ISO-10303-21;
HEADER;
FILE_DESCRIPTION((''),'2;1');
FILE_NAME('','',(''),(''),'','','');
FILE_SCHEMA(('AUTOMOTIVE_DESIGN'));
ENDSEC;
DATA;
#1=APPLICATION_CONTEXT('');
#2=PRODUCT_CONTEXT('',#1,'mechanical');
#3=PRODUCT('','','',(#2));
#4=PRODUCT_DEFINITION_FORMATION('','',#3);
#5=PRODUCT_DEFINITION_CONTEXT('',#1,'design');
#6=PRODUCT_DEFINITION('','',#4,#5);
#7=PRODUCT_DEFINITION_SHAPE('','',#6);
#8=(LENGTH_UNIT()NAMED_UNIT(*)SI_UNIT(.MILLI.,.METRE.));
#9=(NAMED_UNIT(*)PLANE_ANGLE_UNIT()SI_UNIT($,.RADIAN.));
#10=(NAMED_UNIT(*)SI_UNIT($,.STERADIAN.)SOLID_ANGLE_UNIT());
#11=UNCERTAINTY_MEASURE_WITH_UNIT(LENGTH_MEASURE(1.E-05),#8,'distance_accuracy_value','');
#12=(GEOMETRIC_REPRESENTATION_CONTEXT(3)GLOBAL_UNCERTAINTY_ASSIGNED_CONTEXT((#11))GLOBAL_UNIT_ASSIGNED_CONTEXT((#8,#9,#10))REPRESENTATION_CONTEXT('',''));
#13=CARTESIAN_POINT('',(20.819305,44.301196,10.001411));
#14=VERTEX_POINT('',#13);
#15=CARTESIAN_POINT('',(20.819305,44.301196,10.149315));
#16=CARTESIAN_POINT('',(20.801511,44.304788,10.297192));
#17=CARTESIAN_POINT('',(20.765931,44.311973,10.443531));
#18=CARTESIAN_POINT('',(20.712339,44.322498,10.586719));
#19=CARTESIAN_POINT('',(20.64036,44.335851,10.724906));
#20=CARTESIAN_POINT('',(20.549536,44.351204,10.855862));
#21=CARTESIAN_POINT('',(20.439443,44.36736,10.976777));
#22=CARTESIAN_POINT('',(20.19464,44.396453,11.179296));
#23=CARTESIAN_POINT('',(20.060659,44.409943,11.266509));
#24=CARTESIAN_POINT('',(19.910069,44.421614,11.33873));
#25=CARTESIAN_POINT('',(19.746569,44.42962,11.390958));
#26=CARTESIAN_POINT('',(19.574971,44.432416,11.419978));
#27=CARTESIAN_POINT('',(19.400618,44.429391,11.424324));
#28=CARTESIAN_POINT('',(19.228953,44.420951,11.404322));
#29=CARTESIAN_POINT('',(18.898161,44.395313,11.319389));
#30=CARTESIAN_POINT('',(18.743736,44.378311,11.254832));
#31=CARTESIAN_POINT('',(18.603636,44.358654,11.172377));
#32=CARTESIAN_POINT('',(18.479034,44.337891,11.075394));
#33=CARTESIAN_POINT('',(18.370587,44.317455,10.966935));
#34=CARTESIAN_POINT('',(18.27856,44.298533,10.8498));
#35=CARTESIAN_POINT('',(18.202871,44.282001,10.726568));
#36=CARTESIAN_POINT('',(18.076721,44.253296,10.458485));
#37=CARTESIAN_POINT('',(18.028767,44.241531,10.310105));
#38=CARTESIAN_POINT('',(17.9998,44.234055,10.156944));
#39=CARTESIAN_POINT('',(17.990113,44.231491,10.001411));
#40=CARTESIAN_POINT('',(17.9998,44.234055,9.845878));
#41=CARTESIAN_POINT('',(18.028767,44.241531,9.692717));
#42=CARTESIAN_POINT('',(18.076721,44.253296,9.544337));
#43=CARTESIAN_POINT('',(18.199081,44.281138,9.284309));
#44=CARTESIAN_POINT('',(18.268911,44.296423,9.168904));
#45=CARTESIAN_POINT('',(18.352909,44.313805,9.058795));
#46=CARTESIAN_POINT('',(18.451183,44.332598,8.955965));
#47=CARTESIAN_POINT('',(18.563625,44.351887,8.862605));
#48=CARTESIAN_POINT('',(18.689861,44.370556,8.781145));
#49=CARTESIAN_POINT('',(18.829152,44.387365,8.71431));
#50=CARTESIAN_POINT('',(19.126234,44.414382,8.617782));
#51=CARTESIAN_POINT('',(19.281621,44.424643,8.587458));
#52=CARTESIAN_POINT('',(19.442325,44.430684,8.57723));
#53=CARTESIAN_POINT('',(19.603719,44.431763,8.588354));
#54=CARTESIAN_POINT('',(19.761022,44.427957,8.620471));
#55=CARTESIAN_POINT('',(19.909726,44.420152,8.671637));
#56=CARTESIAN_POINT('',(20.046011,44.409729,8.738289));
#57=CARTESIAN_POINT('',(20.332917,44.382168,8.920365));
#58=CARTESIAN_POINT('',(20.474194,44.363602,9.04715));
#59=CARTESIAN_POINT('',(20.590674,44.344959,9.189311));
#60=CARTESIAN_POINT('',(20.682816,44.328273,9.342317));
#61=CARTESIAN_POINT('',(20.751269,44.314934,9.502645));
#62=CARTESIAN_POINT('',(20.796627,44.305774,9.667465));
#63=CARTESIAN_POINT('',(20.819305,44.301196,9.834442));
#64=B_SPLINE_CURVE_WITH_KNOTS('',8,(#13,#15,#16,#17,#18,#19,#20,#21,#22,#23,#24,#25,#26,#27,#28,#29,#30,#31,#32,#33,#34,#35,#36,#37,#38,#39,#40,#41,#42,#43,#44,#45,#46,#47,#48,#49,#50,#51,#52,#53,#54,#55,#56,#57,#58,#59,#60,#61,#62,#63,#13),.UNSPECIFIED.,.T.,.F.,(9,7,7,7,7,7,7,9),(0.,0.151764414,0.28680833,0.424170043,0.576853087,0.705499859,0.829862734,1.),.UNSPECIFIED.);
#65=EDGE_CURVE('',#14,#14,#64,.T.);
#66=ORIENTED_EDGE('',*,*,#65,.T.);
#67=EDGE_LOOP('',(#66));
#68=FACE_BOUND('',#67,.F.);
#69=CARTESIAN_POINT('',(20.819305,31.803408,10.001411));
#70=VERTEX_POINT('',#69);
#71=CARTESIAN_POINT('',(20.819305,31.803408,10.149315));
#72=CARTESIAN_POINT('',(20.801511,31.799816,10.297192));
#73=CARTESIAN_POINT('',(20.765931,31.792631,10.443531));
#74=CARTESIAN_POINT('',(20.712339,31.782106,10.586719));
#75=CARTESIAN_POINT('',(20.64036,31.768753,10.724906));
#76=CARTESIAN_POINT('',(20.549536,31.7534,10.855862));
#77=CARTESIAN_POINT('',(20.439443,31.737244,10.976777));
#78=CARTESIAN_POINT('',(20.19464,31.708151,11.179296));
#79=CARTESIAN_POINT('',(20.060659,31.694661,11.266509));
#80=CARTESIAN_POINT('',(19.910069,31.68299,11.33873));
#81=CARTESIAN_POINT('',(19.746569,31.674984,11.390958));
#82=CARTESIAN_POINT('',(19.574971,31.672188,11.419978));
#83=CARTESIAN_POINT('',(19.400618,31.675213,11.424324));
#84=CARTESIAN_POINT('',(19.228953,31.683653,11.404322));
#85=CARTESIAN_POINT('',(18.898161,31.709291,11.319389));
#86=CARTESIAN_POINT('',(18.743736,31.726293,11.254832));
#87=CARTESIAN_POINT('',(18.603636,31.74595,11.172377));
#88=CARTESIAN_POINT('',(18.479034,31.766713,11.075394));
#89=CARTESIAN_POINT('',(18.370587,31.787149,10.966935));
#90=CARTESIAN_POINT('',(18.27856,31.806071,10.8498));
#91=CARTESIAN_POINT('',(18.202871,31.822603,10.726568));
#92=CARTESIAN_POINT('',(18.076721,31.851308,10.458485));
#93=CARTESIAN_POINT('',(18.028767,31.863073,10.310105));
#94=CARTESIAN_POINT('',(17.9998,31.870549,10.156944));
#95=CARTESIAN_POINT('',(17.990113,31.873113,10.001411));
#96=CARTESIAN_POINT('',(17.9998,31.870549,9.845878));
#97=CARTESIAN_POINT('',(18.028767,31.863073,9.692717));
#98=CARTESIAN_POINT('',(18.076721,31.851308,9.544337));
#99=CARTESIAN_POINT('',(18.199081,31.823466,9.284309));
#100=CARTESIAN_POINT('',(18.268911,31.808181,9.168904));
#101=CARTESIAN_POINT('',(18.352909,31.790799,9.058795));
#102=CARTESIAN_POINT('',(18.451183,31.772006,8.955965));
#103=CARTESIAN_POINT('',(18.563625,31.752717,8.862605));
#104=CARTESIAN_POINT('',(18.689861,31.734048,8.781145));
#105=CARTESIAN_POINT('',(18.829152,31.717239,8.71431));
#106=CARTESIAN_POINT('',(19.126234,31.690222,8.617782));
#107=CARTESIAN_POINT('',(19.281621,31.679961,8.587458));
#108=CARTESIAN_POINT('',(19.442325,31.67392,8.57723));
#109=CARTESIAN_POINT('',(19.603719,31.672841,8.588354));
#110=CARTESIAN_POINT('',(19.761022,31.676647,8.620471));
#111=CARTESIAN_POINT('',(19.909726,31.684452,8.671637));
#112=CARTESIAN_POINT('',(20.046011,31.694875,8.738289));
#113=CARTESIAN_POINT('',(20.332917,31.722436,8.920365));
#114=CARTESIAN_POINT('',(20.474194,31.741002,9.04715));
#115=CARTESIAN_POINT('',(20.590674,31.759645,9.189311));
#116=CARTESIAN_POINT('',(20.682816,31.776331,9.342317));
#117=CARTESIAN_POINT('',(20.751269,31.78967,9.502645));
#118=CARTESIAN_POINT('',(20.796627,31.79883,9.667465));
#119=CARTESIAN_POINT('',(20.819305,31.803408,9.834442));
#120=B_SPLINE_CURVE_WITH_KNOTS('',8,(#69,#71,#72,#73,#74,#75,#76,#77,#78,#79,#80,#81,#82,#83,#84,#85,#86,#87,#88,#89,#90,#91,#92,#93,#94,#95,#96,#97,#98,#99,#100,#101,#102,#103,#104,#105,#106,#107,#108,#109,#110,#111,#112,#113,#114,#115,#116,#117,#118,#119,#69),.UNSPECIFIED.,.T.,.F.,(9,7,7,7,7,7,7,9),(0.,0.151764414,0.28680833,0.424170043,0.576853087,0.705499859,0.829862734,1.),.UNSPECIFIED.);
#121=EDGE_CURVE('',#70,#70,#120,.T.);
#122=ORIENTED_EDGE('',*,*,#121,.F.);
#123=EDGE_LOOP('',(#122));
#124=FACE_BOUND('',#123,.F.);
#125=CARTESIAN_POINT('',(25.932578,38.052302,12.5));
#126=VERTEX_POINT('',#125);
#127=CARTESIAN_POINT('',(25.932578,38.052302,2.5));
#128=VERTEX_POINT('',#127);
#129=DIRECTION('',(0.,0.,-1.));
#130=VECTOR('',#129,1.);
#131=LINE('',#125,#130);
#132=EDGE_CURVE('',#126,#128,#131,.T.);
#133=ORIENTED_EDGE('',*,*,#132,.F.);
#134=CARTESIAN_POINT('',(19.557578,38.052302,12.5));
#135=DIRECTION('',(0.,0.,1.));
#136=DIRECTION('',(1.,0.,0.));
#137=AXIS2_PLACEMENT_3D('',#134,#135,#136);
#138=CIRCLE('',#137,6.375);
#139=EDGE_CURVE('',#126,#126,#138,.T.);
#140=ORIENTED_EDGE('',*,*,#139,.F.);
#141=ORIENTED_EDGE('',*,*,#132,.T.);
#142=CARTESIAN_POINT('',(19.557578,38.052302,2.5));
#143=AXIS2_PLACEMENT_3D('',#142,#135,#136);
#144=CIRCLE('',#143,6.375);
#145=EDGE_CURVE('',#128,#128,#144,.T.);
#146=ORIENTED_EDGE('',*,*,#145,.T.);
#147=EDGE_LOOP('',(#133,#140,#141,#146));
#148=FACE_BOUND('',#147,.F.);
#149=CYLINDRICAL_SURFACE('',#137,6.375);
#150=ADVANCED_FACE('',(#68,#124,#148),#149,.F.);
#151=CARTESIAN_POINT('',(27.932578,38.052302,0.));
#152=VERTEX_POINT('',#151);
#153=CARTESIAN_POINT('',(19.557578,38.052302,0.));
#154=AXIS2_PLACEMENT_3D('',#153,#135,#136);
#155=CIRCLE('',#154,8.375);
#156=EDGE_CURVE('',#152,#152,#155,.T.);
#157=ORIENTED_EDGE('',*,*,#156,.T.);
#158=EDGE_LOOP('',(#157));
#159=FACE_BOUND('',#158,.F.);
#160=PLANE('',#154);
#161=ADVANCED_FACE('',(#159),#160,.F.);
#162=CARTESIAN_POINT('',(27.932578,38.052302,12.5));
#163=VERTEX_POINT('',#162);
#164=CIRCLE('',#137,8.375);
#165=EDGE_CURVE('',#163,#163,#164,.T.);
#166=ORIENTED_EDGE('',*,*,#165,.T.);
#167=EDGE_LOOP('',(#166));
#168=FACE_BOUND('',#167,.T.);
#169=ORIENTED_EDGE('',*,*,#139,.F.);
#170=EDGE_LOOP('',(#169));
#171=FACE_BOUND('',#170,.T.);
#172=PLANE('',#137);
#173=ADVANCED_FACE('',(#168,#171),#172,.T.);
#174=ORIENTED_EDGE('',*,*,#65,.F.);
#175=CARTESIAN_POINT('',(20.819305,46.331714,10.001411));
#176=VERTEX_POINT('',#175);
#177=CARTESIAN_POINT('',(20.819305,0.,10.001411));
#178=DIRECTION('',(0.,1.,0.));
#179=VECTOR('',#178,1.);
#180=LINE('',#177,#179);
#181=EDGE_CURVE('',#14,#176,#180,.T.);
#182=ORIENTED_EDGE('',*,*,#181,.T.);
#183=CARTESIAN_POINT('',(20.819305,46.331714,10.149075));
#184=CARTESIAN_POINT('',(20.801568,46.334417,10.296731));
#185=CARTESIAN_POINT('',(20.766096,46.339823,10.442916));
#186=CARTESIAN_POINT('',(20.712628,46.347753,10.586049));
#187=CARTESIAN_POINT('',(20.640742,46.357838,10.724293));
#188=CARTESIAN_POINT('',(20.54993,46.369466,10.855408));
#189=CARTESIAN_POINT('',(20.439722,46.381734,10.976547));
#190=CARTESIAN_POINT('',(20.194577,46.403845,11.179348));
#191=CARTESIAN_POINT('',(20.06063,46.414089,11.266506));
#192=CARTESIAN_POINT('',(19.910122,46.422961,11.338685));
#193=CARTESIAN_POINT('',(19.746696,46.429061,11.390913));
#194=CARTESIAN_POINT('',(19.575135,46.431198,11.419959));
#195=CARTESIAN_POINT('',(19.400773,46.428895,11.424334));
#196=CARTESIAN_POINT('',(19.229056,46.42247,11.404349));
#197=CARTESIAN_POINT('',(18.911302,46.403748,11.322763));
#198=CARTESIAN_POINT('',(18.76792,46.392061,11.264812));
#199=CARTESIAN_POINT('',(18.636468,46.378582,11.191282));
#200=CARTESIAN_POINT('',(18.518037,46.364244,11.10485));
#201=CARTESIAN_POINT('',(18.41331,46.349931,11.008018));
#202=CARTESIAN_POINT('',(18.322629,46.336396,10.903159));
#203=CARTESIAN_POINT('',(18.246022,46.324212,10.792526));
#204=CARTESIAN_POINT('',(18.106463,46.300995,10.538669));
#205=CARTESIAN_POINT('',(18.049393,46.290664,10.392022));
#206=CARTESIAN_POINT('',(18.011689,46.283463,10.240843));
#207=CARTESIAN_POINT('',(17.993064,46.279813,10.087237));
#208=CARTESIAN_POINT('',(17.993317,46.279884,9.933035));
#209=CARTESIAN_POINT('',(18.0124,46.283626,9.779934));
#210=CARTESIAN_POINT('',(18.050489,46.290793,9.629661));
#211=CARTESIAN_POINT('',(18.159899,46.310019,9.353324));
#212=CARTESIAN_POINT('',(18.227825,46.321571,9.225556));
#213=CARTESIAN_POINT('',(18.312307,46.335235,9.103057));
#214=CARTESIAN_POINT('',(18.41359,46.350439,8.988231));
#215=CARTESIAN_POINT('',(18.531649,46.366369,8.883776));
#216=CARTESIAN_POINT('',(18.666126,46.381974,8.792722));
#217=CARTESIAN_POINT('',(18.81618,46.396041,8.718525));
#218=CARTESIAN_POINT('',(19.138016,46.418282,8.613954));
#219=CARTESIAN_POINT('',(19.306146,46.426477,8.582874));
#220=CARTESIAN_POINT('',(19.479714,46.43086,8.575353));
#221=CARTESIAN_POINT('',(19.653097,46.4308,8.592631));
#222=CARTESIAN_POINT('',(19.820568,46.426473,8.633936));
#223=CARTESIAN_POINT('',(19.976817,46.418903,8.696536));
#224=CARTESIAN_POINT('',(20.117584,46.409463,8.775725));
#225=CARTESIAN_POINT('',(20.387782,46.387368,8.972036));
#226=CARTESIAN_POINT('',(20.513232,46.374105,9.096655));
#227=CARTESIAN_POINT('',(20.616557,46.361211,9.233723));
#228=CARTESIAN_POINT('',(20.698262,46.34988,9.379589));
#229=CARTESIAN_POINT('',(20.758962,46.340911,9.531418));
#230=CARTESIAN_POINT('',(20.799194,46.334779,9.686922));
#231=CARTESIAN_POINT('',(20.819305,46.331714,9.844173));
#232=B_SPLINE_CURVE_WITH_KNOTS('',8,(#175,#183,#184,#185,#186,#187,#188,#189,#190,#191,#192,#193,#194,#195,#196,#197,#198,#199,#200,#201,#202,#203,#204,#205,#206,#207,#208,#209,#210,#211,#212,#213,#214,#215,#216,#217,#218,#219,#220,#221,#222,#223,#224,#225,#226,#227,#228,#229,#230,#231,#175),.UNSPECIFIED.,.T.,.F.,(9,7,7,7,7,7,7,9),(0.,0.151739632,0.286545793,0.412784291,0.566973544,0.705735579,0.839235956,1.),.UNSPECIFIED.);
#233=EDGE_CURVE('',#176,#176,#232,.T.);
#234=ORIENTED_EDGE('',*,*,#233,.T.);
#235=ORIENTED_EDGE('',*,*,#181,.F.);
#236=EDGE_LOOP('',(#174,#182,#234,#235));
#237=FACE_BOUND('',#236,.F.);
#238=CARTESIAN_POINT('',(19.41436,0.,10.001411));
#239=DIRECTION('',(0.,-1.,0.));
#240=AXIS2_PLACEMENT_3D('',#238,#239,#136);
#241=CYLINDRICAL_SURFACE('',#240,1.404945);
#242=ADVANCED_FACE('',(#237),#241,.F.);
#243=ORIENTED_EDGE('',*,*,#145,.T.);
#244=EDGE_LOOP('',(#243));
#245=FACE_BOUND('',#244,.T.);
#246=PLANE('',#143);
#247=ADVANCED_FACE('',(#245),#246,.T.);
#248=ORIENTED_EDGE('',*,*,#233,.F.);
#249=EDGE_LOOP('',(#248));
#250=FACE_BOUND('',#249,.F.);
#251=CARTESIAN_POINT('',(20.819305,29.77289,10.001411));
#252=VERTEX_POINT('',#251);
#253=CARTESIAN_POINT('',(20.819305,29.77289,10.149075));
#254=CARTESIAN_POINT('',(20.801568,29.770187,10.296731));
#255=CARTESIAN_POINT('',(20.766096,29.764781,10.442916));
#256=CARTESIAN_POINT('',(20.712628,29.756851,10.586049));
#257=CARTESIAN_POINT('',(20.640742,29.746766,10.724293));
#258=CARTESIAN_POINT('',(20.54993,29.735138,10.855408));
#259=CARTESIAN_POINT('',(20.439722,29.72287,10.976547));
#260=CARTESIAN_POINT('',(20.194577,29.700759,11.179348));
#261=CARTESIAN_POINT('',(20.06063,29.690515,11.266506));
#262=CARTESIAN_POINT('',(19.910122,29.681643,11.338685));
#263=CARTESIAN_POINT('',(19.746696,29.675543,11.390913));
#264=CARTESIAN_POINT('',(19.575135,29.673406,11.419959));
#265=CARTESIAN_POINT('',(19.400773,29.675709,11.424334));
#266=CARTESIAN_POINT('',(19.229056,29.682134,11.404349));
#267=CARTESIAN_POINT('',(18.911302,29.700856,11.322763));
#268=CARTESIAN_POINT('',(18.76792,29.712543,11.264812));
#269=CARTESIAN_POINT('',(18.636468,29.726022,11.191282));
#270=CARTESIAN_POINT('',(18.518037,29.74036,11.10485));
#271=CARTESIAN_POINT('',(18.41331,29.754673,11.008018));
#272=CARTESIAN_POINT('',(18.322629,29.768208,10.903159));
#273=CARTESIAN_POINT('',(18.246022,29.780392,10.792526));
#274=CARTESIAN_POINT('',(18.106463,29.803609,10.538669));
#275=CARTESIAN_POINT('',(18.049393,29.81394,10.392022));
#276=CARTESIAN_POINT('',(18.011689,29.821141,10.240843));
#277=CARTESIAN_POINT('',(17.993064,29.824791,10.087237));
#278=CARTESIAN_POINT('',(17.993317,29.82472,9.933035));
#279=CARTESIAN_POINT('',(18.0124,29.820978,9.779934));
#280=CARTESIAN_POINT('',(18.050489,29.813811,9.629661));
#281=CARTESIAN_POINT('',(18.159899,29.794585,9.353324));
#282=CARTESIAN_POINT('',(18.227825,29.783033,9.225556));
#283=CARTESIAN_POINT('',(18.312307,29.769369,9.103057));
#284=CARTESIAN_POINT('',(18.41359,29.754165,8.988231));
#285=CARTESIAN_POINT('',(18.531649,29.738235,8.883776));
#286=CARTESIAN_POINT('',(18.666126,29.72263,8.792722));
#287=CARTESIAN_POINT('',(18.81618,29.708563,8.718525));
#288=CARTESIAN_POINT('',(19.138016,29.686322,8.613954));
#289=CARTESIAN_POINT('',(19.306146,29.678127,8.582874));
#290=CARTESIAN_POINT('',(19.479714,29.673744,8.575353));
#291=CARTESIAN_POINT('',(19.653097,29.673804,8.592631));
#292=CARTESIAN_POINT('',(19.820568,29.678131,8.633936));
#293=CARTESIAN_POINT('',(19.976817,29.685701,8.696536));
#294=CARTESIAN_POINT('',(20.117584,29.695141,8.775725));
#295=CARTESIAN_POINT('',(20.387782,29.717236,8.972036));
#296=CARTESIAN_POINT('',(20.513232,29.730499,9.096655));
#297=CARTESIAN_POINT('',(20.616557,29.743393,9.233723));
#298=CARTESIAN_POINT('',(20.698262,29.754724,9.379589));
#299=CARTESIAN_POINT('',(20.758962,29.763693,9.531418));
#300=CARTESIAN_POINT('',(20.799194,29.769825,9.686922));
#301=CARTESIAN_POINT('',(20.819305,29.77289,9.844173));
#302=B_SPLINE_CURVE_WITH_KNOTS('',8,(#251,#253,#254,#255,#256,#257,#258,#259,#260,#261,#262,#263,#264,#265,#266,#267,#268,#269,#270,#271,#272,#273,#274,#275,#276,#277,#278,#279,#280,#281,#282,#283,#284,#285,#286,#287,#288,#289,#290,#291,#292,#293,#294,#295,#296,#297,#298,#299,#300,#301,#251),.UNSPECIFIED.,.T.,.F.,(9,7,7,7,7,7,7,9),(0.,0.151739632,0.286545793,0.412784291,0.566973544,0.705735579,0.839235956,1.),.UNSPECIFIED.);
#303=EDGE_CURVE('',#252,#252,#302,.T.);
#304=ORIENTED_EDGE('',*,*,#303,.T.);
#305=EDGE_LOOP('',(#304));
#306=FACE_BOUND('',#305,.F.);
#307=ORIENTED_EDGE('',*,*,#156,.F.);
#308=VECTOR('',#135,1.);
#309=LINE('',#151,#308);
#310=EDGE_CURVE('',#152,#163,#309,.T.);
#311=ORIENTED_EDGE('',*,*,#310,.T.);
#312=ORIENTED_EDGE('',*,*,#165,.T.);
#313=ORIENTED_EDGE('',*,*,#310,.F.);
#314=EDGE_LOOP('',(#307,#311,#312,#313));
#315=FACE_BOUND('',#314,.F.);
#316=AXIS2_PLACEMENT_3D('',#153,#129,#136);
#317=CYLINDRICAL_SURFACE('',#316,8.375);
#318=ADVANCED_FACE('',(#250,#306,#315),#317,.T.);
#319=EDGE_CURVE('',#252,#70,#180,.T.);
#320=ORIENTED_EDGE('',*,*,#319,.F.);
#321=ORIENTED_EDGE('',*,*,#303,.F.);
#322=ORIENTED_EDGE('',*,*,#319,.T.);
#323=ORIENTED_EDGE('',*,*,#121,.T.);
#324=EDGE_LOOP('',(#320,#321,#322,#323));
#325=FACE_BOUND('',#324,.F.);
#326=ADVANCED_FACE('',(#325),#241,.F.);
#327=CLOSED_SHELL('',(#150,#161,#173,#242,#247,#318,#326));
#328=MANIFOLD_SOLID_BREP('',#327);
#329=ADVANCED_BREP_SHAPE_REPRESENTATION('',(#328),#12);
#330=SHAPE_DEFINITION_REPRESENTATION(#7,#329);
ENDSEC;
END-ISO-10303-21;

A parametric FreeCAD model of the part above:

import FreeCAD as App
import Part
import Sketcher
from FreeCAD import Vector
Q = App.Units.Quantity

doc = App.newDocument("Part")
body = doc.addObject("PartDesign::Body", "Body")

# Sketch on XY plane
sketch1 = body.newObject("Sketcher::SketchObject", "Sketch")
sketch1.AttachmentSupport = (doc.getObject("XY_Plane"), [""])
sketch1.MapMode = "FlatFace"
sketch1.addGeometry(Part.Circle(Vector(20, 38, 0), Vector(0, 0, 1), 8), False)
sketch1.addConstraint([
    Sketcher.Constraint("Diameter", 0, Q("16.75 mm")),
    Sketcher.Constraint("DistanceY", -1, 1, 0, 3, Q("38.052302 mm")),
    Sketcher.Constraint("DistanceX", -1, 1, 0, 3, Q("19.557578 mm")),
])
pad1 = body.newObject("PartDesign::Pad", "Pad")
pad1.Profile = sketch1
pad1.Length = 12.5

# Sketch on XY plane
sketch2 = body.newObject("Sketcher::SketchObject", "Sketch001")
sketch2.AttachmentSupport = (doc.getObject("XY_Plane"), [""])
sketch2.MapMode = "FlatFace"
sketch2.AttachmentOffset = App.Placement(Vector(0, 0, 12.5), App.Rotation())
sketch2.addGeometry(Part.Circle(Vector(20, 38, 0), Vector(0, 0, 1), 6), False)
sketch2.addConstraint([
    Sketcher.Constraint("Diameter", 0, Q("12.75 mm")),
    Sketcher.Constraint("DistanceY", -1, 1, 0, 3, Q("38.052302 mm")),
    Sketcher.Constraint("DistanceX", -1, 1, 0, 3, Q("19.557578 mm")),
])
pocket1 = body.newObject("PartDesign::Pocket", "Pocket")
pocket1.Profile = sketch2
pocket1.Length = 10

# Sketch on XZ plane
sketch3 = body.newObject("Sketcher::SketchObject", "Sketch002")
sketch3.AttachmentSupport = (doc.getObject("XZ_Plane"), [""])
sketch3.MapMode = "FlatFace"
sketch3.addGeometry(Part.Circle(Vector(19.4, 10, 0), Vector(0, 0, 1), 1.4), False)
sketch3.addConstraint([
    Sketcher.Constraint("Diameter", 0, Q("2.80989 mm")),
    Sketcher.Constraint("DistanceX", -1, 1, 0, 3, Q("19.41436 mm")),
    Sketcher.Constraint("DistanceY", -1, 1, 0, 3, Q("10.001411 mm")),
])
pocket2 = body.newObject("PartDesign::Pocket", "Pocket001")
pocket2.Profile = sketch3
pocket2.Length = 75

doc.recompute()
